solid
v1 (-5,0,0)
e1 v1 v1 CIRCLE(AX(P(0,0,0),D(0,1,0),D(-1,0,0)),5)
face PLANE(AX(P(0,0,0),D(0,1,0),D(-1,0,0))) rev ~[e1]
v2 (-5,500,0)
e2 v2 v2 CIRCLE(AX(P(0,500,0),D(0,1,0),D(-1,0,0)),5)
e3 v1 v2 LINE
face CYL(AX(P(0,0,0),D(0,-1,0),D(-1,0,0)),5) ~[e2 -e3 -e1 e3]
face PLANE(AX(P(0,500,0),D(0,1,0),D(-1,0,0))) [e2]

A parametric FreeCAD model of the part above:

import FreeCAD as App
import Part
import Sketcher

doc = App.newDocument("Part")
body = doc.addObject("PartDesign::Body", "Body")

# Sketch on XZ plane
sketch1 = body.newObject("Sketcher::SketchObject", "Sketch")
sketch1.AttachmentSupport = (doc.getObject("XZ_Plane"), [""])
sketch1.MapMode = "FlatFace"
sketch1.addGeometry(Part.Circle(App.Vector(0, 0, 0), App.Vector(0, 0, 1), 5), False)
sketch1.addConstraint([
    Sketcher.Constraint("Coincident", 0, 3, -1, 1),
    Sketcher.Constraint("Diameter", 0, 10.0),
])
pad1 = body.newObject("PartDesign::Pad", "Pad")
pad1.Profile = sketch1
pad1.Length = 500
pad1.Reversed = True

doc.recompute()
